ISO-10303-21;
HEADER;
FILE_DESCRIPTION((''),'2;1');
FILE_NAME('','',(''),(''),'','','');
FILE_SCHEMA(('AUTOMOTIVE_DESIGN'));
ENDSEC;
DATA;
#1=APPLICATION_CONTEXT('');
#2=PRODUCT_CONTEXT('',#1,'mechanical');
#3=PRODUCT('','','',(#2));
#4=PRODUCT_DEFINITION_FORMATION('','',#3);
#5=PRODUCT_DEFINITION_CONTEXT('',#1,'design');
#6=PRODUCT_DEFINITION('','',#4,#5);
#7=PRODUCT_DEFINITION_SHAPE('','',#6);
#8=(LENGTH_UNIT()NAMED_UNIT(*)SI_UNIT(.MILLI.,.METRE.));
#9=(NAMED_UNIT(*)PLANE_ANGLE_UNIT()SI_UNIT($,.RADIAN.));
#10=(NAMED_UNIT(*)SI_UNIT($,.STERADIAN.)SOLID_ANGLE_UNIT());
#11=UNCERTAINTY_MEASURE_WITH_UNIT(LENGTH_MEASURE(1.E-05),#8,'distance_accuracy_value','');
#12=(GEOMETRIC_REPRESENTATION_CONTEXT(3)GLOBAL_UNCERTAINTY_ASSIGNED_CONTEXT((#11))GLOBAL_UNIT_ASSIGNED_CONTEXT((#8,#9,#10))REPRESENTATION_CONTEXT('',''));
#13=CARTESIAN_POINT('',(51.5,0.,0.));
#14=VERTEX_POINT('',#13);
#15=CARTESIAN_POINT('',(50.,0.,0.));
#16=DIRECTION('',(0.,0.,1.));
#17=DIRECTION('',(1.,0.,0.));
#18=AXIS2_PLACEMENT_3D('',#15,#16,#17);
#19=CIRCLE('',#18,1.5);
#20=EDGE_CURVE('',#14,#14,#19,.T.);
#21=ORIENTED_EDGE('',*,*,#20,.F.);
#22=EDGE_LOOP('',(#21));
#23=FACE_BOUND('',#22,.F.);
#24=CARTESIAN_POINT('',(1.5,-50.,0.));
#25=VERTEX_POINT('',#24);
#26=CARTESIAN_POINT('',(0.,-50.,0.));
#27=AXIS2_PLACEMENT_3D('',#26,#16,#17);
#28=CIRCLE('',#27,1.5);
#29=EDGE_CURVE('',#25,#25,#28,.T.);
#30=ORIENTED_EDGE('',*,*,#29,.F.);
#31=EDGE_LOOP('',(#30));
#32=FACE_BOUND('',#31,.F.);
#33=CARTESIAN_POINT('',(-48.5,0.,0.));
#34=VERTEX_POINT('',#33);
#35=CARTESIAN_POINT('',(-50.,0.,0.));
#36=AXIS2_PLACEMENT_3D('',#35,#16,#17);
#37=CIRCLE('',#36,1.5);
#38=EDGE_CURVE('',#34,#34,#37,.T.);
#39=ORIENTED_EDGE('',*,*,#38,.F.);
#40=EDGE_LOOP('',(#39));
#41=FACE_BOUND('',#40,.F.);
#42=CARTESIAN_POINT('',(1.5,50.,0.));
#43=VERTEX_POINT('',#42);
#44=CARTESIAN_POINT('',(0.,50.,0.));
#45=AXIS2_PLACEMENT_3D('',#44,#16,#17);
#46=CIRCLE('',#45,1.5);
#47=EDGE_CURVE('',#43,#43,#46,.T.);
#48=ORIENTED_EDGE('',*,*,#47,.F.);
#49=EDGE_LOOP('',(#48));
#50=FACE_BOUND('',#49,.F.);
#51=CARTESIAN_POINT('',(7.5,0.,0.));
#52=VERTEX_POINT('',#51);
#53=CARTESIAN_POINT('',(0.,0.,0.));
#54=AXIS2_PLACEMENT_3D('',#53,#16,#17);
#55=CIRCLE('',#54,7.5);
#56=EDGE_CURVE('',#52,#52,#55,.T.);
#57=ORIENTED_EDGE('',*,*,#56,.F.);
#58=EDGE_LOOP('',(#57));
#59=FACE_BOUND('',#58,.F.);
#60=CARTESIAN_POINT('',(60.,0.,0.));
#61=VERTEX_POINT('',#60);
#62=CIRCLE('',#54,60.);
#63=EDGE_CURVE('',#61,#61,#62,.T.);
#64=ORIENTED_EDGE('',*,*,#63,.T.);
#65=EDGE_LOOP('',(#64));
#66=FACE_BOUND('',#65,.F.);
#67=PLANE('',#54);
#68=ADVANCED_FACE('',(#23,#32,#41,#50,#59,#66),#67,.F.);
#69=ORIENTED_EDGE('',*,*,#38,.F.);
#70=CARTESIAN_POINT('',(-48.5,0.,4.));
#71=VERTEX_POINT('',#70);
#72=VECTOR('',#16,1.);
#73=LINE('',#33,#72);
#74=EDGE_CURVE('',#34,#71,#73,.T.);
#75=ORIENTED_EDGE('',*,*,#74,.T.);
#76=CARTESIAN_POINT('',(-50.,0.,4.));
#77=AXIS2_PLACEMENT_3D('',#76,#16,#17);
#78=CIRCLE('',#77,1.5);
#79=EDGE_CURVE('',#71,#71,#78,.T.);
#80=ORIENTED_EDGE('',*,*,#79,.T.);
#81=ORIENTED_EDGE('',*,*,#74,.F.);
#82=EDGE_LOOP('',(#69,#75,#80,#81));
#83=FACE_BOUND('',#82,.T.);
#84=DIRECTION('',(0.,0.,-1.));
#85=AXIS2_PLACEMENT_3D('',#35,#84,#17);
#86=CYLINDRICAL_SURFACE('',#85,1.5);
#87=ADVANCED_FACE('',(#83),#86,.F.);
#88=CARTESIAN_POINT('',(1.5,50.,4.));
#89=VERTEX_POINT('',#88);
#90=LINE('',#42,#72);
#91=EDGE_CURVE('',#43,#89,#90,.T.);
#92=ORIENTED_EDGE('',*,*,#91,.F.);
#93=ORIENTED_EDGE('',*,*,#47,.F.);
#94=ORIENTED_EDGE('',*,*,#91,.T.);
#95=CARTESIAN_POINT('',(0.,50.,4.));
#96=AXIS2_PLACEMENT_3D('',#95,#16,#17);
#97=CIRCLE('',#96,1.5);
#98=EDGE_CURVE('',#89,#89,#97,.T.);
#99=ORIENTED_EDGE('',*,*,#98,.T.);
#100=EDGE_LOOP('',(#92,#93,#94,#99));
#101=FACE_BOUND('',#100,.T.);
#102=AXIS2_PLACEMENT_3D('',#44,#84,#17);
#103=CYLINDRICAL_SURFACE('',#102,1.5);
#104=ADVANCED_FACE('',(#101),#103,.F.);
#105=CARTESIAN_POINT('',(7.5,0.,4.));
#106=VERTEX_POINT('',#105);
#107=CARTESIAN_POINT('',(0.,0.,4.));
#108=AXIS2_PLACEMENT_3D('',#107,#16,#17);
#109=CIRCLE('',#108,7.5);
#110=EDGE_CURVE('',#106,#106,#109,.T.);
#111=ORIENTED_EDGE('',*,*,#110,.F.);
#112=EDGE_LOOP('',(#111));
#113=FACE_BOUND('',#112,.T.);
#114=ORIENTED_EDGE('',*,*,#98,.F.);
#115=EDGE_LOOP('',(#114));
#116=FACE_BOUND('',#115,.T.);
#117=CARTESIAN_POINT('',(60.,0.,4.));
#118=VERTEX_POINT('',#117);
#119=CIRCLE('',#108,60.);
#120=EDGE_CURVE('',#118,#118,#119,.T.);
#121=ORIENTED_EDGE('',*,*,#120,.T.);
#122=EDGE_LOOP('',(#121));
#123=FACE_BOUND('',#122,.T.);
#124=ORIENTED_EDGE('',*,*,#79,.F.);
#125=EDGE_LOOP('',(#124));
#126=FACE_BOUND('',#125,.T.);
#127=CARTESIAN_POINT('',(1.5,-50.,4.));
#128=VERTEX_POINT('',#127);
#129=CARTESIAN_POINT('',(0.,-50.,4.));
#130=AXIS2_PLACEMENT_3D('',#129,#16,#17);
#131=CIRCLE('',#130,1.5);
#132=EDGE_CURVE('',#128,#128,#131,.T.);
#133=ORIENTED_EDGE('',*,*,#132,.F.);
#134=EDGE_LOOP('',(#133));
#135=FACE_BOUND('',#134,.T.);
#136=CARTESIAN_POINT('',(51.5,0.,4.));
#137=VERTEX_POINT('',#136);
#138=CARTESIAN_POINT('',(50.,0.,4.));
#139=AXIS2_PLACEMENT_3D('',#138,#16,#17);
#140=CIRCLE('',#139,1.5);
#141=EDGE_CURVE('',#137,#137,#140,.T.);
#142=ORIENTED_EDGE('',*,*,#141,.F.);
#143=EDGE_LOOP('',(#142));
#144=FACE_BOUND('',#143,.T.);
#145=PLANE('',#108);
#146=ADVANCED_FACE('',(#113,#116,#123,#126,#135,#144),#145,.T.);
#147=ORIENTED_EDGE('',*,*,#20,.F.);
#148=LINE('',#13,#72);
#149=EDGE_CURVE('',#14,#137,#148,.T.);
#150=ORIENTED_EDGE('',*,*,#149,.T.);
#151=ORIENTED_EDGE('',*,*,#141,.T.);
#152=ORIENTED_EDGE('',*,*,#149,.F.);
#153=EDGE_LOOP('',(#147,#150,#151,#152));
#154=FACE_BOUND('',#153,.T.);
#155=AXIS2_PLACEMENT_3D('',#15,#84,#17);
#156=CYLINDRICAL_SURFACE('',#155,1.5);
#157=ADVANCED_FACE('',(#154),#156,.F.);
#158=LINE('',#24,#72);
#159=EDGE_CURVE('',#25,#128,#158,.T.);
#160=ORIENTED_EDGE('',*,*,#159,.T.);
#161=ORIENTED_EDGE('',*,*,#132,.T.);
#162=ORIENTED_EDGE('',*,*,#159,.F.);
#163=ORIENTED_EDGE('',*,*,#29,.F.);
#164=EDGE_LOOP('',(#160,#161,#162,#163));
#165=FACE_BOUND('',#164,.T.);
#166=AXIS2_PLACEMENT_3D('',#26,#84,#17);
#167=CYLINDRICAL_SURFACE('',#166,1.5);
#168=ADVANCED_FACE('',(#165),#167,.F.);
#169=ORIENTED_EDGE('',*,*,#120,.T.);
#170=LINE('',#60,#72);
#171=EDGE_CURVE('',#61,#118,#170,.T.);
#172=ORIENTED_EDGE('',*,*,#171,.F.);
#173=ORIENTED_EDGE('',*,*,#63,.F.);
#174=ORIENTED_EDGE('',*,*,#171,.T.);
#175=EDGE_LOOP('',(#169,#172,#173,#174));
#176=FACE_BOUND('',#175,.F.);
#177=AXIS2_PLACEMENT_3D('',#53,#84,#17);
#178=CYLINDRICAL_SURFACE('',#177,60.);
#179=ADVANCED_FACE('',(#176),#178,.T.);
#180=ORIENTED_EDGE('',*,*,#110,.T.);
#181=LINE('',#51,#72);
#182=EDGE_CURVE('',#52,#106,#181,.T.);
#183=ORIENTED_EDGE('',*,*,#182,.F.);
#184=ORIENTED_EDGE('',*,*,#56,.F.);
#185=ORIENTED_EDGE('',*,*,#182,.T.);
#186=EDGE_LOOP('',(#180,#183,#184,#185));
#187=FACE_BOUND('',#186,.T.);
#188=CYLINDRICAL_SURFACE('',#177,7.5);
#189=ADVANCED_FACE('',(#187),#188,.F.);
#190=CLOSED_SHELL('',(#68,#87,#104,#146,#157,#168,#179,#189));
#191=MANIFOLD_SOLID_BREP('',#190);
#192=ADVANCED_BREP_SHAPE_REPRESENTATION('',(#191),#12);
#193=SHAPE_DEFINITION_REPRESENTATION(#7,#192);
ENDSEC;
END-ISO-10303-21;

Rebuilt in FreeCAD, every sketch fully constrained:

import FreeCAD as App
import Part
import Sketcher

V = App.Vector

doc = App.newDocument("Part")
params = doc.addObject("Spreadsheet::Sheet", "Params")
for row, (alias, value) in enumerate([
    ("sketch1_diameter", "120 mm"),
    ("sketch1_diameter2", "3 mm"),
    ("sketch1_diameter3", "15 mm"),
    ("pad1_length", "4 mm"),
], start=1):
    params.set(f"A{row}", alias)
    params.set(f"B{row}", "=" + value)
    params.setAlias(f"B{row}", alias)

body = doc.addObject("PartDesign::Body", "Body")

# Sketch on XY plane
sketch1 = doc.addObject("Sketcher::SketchObject", "Sketch")
body.addObject(sketch1)
sketch1.AttachmentSupport = (doc.XY_Plane, [""])
sketch1.MapMode = "FlatFace"
sketch1.addGeometry([
    Part.Circle(V(0, 0, 0), V(0, 0, 1), 60),  # 0
    Part.Circle(V(0, -50, 0), V(0, 0, 1), 1.5),  # 1
    Part.Circle(V(-50, 0, 0), V(0, 0, 1), 1.5),  # 2
    Part.Circle(V(0, 0, 0), V(0, 0, 1), 7.5),  # 3
    Part.Circle(V(50, 0, 0), V(0, 0, 1), 1.5),  # 4
    Part.Circle(V(0, 50, 0), V(0, 0, 1), 1.5),  # 5
], False)
sketch1.addConstraint([
    Sketcher.Constraint("Coincident", 0, 3, -1, 1),
    Sketcher.Constraint("Coincident", 3, 3, -1, 1),
    Sketcher.Constraint("Equal", 1, 2),
    Sketcher.Constraint("Equal", 2, 4),
    Sketcher.Constraint("Equal", 4, 5),
    Sketcher.Constraint("Symmetric", 2, 3, 4, 3, -1, 1),
    Sketcher.Constraint("Symmetric", 1, 3, 5, 3, -1, 1),
    Sketcher.Constraint("PointOnObject", 1, 3, -2),
    Sketcher.Constraint("PointOnObject", 2, 3, -1),
    Sketcher.Constraint("Diameter", 0, 120.0),
    Sketcher.Constraint("Diameter", 1, 3.0),
    Sketcher.Constraint("Diameter", 3, 15.0),
    Sketcher.Constraint("DistanceY", 1, 3, -1, 1, 50.0),
    Sketcher.Constraint("DistanceX", 2, 3, -1, 1, 50.0),
])
sketch1.setExpression("Constraints[9]", "Params.sketch1_diameter")
sketch1.setExpression("Constraints[10]", "Params.sketch1_diameter2")
sketch1.setExpression("Constraints[11]", "Params.sketch1_diameter3")
pad1 = doc.addObject("PartDesign::Pad", "Pad")
body.addObject(pad1)
pad1.Profile = sketch1
pad1.setExpression("Length", "Params.pad1_length")

doc.recompute()
